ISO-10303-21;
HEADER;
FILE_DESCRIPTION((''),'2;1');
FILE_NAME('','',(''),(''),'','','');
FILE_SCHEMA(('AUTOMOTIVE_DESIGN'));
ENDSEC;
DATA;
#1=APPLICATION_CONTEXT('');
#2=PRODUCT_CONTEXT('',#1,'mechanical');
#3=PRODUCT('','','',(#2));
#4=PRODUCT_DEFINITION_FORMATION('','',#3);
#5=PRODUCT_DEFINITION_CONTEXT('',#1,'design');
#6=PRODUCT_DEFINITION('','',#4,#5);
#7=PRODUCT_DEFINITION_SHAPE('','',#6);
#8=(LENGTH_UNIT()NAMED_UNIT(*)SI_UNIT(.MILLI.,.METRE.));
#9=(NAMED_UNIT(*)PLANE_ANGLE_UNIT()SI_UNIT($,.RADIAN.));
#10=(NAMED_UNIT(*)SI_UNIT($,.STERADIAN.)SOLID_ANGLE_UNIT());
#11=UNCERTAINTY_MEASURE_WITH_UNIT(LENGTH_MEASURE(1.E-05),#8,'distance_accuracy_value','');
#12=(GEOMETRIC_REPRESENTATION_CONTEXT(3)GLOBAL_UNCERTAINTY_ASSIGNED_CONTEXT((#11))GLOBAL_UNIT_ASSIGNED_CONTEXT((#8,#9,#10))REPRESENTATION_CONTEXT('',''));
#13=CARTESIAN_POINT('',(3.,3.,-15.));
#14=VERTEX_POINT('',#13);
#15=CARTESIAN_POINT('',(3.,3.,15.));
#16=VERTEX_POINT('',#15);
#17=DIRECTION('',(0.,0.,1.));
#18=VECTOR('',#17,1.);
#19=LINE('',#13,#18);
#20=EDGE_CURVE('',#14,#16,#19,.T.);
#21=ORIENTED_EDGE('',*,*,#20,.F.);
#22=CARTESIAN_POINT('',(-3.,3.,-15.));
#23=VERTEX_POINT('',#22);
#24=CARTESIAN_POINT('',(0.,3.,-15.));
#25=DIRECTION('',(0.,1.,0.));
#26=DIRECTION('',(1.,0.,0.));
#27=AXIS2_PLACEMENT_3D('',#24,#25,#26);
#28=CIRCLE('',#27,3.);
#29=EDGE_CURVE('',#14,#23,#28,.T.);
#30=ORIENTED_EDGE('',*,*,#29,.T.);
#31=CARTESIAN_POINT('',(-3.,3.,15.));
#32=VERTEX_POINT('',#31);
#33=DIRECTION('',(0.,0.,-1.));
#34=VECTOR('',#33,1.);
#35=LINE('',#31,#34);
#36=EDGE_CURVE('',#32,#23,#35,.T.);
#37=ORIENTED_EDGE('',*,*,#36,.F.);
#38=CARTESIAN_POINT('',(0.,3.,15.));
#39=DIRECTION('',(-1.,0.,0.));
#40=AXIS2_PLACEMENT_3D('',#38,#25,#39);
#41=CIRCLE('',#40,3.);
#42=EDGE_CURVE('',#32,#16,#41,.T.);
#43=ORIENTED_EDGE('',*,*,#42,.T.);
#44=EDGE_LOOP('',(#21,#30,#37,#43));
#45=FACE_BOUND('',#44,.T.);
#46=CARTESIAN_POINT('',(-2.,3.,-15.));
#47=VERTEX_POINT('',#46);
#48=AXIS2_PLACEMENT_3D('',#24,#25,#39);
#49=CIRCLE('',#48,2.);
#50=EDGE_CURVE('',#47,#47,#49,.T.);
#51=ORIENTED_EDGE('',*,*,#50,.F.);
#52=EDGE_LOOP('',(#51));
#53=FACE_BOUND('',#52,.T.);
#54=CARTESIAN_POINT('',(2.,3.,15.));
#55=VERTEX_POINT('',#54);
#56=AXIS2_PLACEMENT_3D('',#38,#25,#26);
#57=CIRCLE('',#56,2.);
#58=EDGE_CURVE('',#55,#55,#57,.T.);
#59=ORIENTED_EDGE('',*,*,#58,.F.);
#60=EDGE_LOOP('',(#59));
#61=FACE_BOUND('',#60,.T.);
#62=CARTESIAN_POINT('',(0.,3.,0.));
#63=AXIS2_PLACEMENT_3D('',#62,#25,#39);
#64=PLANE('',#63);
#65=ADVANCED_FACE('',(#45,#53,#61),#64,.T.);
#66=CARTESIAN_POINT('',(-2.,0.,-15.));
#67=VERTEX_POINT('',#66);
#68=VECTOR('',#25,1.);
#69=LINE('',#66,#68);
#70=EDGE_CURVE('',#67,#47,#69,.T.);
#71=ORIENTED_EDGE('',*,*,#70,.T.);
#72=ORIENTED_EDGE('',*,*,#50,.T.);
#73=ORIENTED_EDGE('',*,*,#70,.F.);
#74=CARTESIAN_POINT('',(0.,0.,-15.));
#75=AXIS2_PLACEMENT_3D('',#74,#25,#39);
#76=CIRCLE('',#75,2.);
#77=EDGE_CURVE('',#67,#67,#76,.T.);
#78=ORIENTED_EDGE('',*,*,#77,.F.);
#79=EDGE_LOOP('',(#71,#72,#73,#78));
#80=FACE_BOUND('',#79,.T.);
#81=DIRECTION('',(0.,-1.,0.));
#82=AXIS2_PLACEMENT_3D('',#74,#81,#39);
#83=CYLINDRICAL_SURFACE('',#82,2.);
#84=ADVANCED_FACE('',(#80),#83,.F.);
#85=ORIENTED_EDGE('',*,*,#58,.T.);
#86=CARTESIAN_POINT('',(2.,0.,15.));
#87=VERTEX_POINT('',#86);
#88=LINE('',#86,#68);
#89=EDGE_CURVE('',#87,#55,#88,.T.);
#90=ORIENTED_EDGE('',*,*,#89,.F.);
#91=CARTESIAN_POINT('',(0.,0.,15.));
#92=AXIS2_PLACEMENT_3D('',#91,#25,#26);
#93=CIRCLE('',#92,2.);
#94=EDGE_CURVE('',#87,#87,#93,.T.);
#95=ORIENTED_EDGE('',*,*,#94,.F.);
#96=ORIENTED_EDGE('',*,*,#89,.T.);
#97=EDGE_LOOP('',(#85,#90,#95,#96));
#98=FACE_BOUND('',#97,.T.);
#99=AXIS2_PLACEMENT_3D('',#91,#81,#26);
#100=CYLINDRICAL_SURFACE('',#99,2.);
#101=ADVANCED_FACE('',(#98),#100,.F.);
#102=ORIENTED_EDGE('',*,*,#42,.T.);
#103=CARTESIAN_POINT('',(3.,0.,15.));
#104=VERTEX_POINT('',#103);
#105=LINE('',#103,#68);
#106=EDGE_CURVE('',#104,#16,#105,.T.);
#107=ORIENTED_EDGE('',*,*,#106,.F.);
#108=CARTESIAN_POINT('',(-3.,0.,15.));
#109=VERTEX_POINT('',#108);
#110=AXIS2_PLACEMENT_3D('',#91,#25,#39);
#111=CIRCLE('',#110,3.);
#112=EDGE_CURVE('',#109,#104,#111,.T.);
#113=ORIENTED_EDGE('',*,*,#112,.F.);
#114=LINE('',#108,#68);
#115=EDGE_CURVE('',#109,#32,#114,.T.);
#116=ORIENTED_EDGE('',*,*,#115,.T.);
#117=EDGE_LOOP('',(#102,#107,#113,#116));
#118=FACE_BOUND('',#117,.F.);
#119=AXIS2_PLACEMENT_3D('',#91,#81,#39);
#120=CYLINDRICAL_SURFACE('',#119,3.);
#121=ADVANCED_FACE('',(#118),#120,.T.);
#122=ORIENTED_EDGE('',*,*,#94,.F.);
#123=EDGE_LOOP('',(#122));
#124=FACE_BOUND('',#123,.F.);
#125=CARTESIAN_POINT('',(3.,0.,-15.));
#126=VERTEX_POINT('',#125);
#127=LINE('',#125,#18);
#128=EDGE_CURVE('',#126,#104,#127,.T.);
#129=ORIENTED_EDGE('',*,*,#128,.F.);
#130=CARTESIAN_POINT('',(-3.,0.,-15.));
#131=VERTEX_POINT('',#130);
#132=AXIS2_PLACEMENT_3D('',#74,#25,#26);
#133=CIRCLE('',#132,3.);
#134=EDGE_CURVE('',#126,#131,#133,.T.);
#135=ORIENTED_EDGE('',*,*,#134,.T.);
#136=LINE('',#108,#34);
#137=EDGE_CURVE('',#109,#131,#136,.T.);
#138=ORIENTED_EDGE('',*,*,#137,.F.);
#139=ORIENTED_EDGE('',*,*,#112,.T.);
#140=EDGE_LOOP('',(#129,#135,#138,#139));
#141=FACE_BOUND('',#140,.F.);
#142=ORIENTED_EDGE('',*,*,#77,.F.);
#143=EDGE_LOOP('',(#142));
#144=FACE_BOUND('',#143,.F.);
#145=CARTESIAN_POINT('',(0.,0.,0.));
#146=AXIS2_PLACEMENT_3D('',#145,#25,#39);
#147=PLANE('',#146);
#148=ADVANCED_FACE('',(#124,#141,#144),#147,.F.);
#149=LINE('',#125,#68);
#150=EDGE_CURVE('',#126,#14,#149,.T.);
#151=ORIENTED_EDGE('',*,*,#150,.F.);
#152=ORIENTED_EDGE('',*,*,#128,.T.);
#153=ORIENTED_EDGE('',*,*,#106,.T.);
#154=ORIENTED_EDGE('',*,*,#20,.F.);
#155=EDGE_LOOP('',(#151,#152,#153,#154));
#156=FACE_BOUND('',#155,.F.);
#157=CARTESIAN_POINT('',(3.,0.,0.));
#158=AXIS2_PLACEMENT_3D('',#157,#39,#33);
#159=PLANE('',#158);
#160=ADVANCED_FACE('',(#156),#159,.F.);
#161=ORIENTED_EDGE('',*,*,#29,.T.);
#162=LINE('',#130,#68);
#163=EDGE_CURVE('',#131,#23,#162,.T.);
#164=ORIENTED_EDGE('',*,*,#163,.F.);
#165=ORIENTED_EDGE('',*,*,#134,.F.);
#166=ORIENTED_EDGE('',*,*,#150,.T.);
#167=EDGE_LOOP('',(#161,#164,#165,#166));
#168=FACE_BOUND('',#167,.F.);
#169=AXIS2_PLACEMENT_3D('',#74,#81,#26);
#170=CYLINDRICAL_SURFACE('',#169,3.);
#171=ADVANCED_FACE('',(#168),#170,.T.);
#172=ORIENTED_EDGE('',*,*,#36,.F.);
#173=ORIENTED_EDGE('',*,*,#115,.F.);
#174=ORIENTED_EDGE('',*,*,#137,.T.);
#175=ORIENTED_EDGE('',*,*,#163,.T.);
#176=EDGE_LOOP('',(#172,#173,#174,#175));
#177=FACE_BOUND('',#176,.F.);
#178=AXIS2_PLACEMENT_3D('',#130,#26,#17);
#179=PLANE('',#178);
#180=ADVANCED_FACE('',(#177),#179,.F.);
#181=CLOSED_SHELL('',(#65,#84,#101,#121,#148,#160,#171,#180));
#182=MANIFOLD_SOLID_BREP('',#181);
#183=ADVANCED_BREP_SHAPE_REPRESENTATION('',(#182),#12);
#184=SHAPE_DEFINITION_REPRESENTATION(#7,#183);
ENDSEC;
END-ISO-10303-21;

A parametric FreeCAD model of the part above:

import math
import FreeCAD as App
import Part
import Sketcher
Q = App.Units.Quantity

doc = App.newDocument("Part")
body = doc.addObject("PartDesign::Body", "Body")

# Sketch on XZ plane
sketch1 = body.newObject("Sketcher::SketchObject", "Sketch")
sketch1.AttachmentSupport = (doc.getObject("XZ_Plane"), [""])
sketch1.MapMode = "FlatFace"
sketch1.addGeometry(Part.ArcOfCircle(Part.Circle(App.Vector(0, 0, 0), App.Vector(0, 0, 1), 3), math.radians(0), math.radians(180)), False)
sketch1.addGeometry(Part.LineSegment(App.Vector(3, 0, 0), App.Vector(3, -15, 0)), False)
sketch1.addGeometry(Part.ArcOfCircle(Part.Circle(App.Vector(0, -15, 0), App.Vector(0, 0, 1), 3), math.radians(180), math.radians(360)), False)
sketch1.addGeometry(Part.LineSegment(App.Vector(-3, -15, 0), App.Vector(-3, 0, 0)), False)
sketch1.addGeometry(Part.Circle(App.Vector(0, -15, 0), App.Vector(0, 0, 1), 2), False)
sketch1.addConstraint(Sketcher.Constraint("Tangent", 0, 1, 1, 1))
sketch1.addConstraint(Sketcher.Constraint("Tangent", 1, 2, 2, 2))
sketch1.addConstraint(Sketcher.Constraint("Tangent", 2, 1, 3, 1))
sketch1.addConstraint(Sketcher.Constraint("Tangent", 3, 2, 0, 2))
sketch1.addConstraint(Sketcher.Constraint("Vertical", 1))
sketch1.addConstraint(Sketcher.Constraint("Vertical", 3))
sketch1.addConstraint(Sketcher.Constraint("Coincident", 0, 3, -1, 1))
sketch1.addConstraint(Sketcher.Constraint("Coincident", 4, 3, 2, 3))
sketch1.addConstraint(Sketcher.Constraint("Diameter", 4, Q("4 mm")))
sketch1.addConstraint(Sketcher.Constraint("Radius", 0, Q("3 mm")))
sketch1.addConstraint(Sketcher.Constraint("DistanceY", 1, 2, 1, 1, Q("15 mm")))
pad1 = body.newObject("PartDesign::Pad", "Pad")
pad1.Profile = sketch1
pad1.Length = 3
pad1.Reversed = True
doc.recompute()

polarpattern = body.newObject("PartDesign::PolarPattern", "PolarPattern")
polarpattern.Originals = [pad1]
polarpattern.Axis = (doc.getObject("Y_Axis"), [""])
polarpattern.Angle = 360
polarpattern.Occurrences = 2
body.Tip = polarpattern

doc.recompute()
